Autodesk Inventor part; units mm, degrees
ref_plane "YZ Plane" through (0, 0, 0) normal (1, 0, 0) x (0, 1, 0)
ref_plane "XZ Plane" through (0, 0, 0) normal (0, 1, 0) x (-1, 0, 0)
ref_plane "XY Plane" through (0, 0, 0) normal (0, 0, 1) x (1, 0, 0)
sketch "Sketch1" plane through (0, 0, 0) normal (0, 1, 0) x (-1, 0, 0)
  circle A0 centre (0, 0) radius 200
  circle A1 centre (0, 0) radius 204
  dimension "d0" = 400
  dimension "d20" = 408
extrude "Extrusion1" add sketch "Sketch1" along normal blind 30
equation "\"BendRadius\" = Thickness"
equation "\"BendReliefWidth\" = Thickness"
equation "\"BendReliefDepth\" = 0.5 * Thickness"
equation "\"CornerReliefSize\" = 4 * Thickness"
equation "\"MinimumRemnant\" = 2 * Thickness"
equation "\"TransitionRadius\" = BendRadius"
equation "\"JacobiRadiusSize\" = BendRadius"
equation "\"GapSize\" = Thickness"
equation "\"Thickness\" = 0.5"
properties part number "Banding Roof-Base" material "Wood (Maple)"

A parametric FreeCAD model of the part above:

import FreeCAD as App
import Part
import Sketcher
from FreeCAD import Vector

doc = App.newDocument("Part")
body = doc.addObject("PartDesign::Body", "Body")

sketch1 = body.newObject("Sketcher::SketchObject", "Sketch")
sketch1.AttachmentSupport = (doc.getObject("XZ_Plane"), [""])
sketch1.MapMode = "FlatFace"
sketch1.addGeometry(Part.Circle(Vector(0, 0, 0), Vector(0, 0, 1), 204), False)
sketch1.addGeometry(Part.Circle(Vector(0, 0, 0), Vector(0, 0, 1), 200), False)
sketch1.addConstraint(Sketcher.Constraint("Coincident", 0, 3, -1, 1))
sketch1.addConstraint(Sketcher.Constraint("Coincident", 1, 3, -1, 1))
sketch1.addConstraint(Sketcher.Constraint("Diameter", 0, 408.0))
sketch1.addConstraint(Sketcher.Constraint("Diameter", 1, 400.0))
pad1 = body.newObject("PartDesign::Pad", "Pad")
pad1.Profile = sketch1
pad1.Length = 30
pad1.Reversed = True

doc.recompute()
